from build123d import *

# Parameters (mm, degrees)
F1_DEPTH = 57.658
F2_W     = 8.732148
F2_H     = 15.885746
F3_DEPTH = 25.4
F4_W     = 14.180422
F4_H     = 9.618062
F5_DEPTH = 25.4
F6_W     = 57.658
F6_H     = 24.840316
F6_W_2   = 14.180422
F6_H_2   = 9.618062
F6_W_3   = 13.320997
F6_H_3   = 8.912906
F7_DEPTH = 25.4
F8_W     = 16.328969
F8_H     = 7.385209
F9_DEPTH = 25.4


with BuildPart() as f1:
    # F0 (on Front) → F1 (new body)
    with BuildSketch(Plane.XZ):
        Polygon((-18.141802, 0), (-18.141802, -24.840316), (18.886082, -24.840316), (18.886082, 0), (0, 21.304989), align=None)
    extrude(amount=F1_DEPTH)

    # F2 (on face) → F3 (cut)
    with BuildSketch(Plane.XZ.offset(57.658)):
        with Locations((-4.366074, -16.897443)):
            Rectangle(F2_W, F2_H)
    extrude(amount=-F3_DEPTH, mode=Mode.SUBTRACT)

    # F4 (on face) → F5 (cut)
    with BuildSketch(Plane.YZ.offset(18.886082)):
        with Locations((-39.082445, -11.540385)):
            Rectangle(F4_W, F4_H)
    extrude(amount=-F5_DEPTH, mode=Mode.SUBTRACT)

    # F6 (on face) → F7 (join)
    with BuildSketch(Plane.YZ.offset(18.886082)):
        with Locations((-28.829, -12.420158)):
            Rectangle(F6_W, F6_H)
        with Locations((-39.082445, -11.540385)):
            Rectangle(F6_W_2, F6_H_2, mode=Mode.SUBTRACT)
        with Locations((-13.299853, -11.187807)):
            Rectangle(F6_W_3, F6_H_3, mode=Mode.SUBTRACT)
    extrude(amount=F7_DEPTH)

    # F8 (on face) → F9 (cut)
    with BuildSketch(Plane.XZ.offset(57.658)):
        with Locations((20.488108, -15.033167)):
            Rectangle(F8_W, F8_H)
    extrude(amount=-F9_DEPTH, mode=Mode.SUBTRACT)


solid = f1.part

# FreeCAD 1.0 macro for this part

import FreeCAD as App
import Part
import Sketcher
from FreeCAD import Vector
Q = App.Units.Quantity

doc = App.newDocument("Part")
body = doc.addObject("PartDesign::Body", "Body")

# Sketch on XZ plane
sketch1 = body.newObject("Sketcher::SketchObject", "Sketch")
sketch1.AttachmentSupport = (doc.getObject("XZ_Plane"), [""])
sketch1.MapMode = "FlatFace"
sketch1.addGeometry([
    Part.LineSegment(Vector(-18, 0, 0), Vector(-18, -25, 0)),  # 0
    Part.LineSegment(Vector(-18, -25, 0), Vector(19, -25, 0)),  # 1
    Part.LineSegment(Vector(19, -25, 0), Vector(19, 0, 0)),  # 2
    Part.LineSegment(Vector(19, 0, 0), Vector(0, 21, 0)),  # 3
    Part.LineSegment(Vector(0, 21, 0), Vector(-18, 0, 0)),  # 4
], False)
sketch1.addConstraint([
    Sketcher.Constraint("Coincident", 0, 2, 1, 1),
    Sketcher.Constraint("Coincident", 1, 2, 2, 1),
    Sketcher.Constraint("Coincident", 2, 2, 3, 1),
    Sketcher.Constraint("Coincident", 3, 2, 4, 1),
    Sketcher.Constraint("Coincident", 4, 2, 0, 1),
    Sketcher.Constraint("Vertical", 0),
    Sketcher.Constraint("Horizontal", 1),
    Sketcher.Constraint("Vertical", 2),
    Sketcher.Constraint("PointOnObject", 2, 2, -1),
    Sketcher.Constraint("PointOnObject", 3, 2, -2),
    Sketcher.Constraint("PointOnObject", 4, 2, -1),
    Sketcher.Constraint("DistanceX", 0, 2, -1, 1, Q("18.141802 mm")),
    Sketcher.Constraint("Distance", 4, Q("27.982629 mm")),
    Sketcher.Constraint("DistanceX", 1, 1, 1, 2, Q("37.027884 mm")),
    Sketcher.Constraint("DistanceY", 0, 2, 0, 1, Q("24.840316 mm")),
])
pad1 = body.newObject("PartDesign::Pad", "Pad")
pad1.Profile = sketch1
pad1.Length = Q("2.27 in")

# Sketch on XZ plane
sketch2 = body.newObject("Sketcher::SketchObject", "Sketch001")
sketch2.AttachmentSupport = (doc.getObject("XZ_Plane"), [""])
sketch2.MapMode = "FlatFace"
sketch2.AttachmentOffset = App.Placement(Vector(0, 0, 2.27 * 25.4), App.Rotation())
sketch2.addGeometry([
    Part.LineSegment(Vector(-9, -9, 0), Vector(-9, -25, 0)),
    Part.LineSegment(Vector(-9, -25, 0), Vector(0, -25, 0)),
    Part.LineSegment(Vector(0, -25, 0), Vector(0, -9, 0)),
    Part.LineSegment(Vector(0, -9, 0), Vector(-9, -9, 0)),
], False)
sketch2.addConstraint([
    Sketcher.Constraint("Coincident", 0, 2, 1, 1),
    Sketcher.Constraint("Coincident", 1, 2, 2, 1),
    Sketcher.Constraint("Coincident", 2, 2, 3, 1),
    Sketcher.Constraint("Coincident", 3, 2, 0, 1),
    Sketcher.Constraint("Vertical", 0),
    Sketcher.Constraint("Horizontal", 1),
    Sketcher.Constraint("Vertical", 2),
    Sketcher.Constraint("Horizontal", 3),
    Sketcher.Constraint("PointOnObject", 1, 2, -2),
    Sketcher.Constraint("DistanceX", 1, 1, 1, 2, Q("8.732148 mm")),
    Sketcher.Constraint("DistanceY", 0, 2, 0, 1, Q("15.885746 mm")),
    Sketcher.Constraint("DistanceY", 2, 2, -1, 1, Q("8.95457 mm")),
])
pocket1 = body.newObject("PartDesign::Pocket", "Pocket")
pocket1.Profile = sketch2
pocket1.Length = Q("1 in")

# Sketch on YZ plane
sketch3 = body.newObject("Sketcher::SketchObject", "Sketch002")
sketch3.AttachmentSupport = (doc.getObject("YZ_Plane"), [""])
sketch3.MapMode = "FlatFace"
sketch3.AttachmentOffset = App.Placement(Vector(0, 0, 18.886082), App.Rotation())
sketch3.addGeometry([
    Part.LineSegment(Vector(-46, -7, 0), Vector(-46, -16, 0)),
    Part.LineSegment(Vector(-46, -16, 0), Vector(-32, -16, 0)),
    Part.LineSegment(Vector(-32, -16, 0), Vector(-32, -7, 0)),
    Part.LineSegment(Vector(-32, -7, 0), Vector(-46, -7, 0)),
], False)
sketch3.addConstraint([
    Sketcher.Constraint("Coincident", 0, 2, 1, 1),
    Sketcher.Constraint("Coincident", 1, 2, 2, 1),
    Sketcher.Constraint("Coincident", 2, 2, 3, 1),
    Sketcher.Constraint("Coincident", 3, 2, 0, 1),
    Sketcher.Constraint("Vertical", 0),
    Sketcher.Constraint("Horizontal", 1),
    Sketcher.Constraint("Vertical", 2),
    Sketcher.Constraint("Horizontal", 3),
    Sketcher.Constraint("DistanceX", 1, 1, 1, 2, Q("14.180422 mm")),
    Sketcher.Constraint("DistanceY", 0, 2, 0, 1, Q("9.618062 mm")),
    Sketcher.Constraint("DistanceX", 0, 2, -1, 1, Q("46.172656 mm")),
    Sketcher.Constraint("DistanceY", 0, 2, -1, 1, Q("16.349416 mm")),
])
pocket2 = body.newObject("PartDesign::Pocket", "Pocket001")
pocket2.Profile = sketch3
pocket2.Length = Q("1 in")

# Sketch on YZ plane
sketch4 = body.newObject("Sketcher::SketchObject", "Sketch003")
sketch4.AttachmentSupport = (doc.getObject("YZ_Plane"), [""])
sketch4.MapMode = "FlatFace"
sketch4.AttachmentOffset = App.Placement(Vector(0, 0, 18.886082), App.Rotation())
sketch4.addGeometry([
    Part.LineSegment(Vector(-58, 0, 0), Vector(-58, -25, 0)),  # 0
    Part.LineSegment(Vector(-58, -25, 0), Vector(0, -25, 0)),  # 1
    Part.LineSegment(Vector(0, -25, 0), Vector(0, 0, 0)),  # 2
    Part.LineSegment(Vector(0, 0, 0), Vector(-58, 0, 0)),  # 3
    Part.LineSegment(Vector(-32, -16, 0), Vector(-46, -16, 0)),  # 4
    Part.LineSegment(Vector(-46, -16, 0), Vector(-46, -7, 0)),  # 5
    Part.LineSegment(Vector(-46, -7, 0), Vector(-32, -7, 0)),  # 6
    Part.LineSegment(Vector(-32, -7, 0), Vector(-32, -16, 0)),  # 7
    Part.LineSegment(Vector(-7, -16, 0), Vector(-20, -16, 0)),  # 8
    Part.LineSegment(Vector(-20, -16, 0), Vector(-20, -7, 0)),  # 9
    Part.LineSegment(Vector(-20, -7, 0), Vector(-7, -7, 0)),  # 10
    Part.LineSegment(Vector(-7, -7, 0), Vector(-7, -16, 0)),  # 11
], False)
sketch4.addConstraint([
    Sketcher.Constraint("Coincident", 0, 2, 1, 1),
    Sketcher.Constraint("Coincident", 1, 2, 2, 1),
    Sketcher.Constraint("Coincident", 2, 2, 3, 1),
    Sketcher.Constraint("Coincident", 3, 2, 0, 1),
    Sketcher.Constraint("Coincident", 4, 2, 5, 1),
    Sketcher.Constraint("Coincident", 5, 2, 6, 1),
    Sketcher.Constraint("Coincident", 6, 2, 7, 1),
    Sketcher.Constraint("Coincident", 7, 2, 4, 1),
    Sketcher.Constraint("Coincident", 8, 2, 9, 1),
    Sketcher.Constraint("Coincident", 9, 2, 10, 1),
    Sketcher.Constraint("Coincident", 10, 2, 11, 1),
    Sketcher.Constraint("Coincident", 11, 2, 8, 1),
    Sketcher.Constraint("Vertical", 0),
    Sketcher.Constraint("Horizontal", 1),
    Sketcher.Constraint("Vertical", 2),
    Sketcher.Constraint("Horizontal", 3),
    Sketcher.Constraint("Horizontal", 4),
    Sketcher.Constraint("Vertical", 5),
    Sketcher.Constraint("Horizontal", 6),
    Sketcher.Constraint("Vertical", 7),
    Sketcher.Constraint("Horizontal", 8),
    Sketcher.Constraint("Vertical", 9),
    Sketcher.Constraint("Horizontal", 10),
    Sketcher.Constraint("Vertical", 11),
    Sketcher.Constraint("Coincident", 2, 2, -1, 1),
    Sketcher.Constraint("Horizontal", 6, 2, 9, 2),
    Sketcher.Constraint("DistanceX", 1, 1, 1, 2, Q("2.27 in")),
    Sketcher.Constraint("DistanceY", 0, 2, 4, 2, Q("8.4909 mm")),
    Sketcher.Constraint("DistanceX", 4, 2, 4, 1, Q("14.180422 mm")),
    Sketcher.Constraint("DistanceX", 8, 2, 8, 1, Q("13.320997 mm")),
    Sketcher.Constraint("DistanceY", 0, 2, 0, 1, Q("24.840316 mm")),
    Sketcher.Constraint("DistanceY", 5, 1, 5, 2, Q("9.618062 mm")),
    Sketcher.Constraint("DistanceY", 9, 1, 9, 2, Q("8.912906 mm")),
    Sketcher.Constraint("DistanceX", 8, 2, -1, 1, Q("19.960352 mm")),
    Sketcher.Constraint("DistanceX", 6, 2, 10, 2, Q("25.35288 mm")),
])
pad2 = body.newObject("PartDesign::Pad", "Pad001")
pad2.Profile = sketch4
pad2.Length = Q("1 in")

# Sketch on XZ plane
sketch5 = body.newObject("Sketcher::SketchObject", "Sketch004")
sketch5.AttachmentSupport = (doc.getObject("XZ_Plane"), [""])
sketch5.MapMode = "FlatFace"
sketch5.AttachmentOffset = App.Placement(Vector(0, 0, 2.27 * 25.4), App.Rotation())
sketch5.addGeometry([
    Part.LineSegment(Vector(12, -11, 0), Vector(12, -19, 0)),
    Part.LineSegment(Vector(12, -19, 0), Vector(29, -19, 0)),
    Part.LineSegment(Vector(29, -19, 0), Vector(29, -11, 0)),
    Part.LineSegment(Vector(29, -11, 0), Vector(12, -11, 0)),
], False)
sketch5.addConstraint([
    Sketcher.Constraint("Coincident", 0, 2, 1, 1),
    Sketcher.Constraint("Coincident", 1, 2, 2, 1),
    Sketcher.Constraint("Coincident", 2, 2, 3, 1),
    Sketcher.Constraint("Coincident", 3, 2, 0, 1),
    Sketcher.Constraint("Vertical", 0),
    Sketcher.Constraint("Horizontal", 1),
    Sketcher.Constraint("Vertical", 2),
    Sketcher.Constraint("Horizontal", 3),
    Sketcher.Constraint("DistanceX", 1, 1, 1, 2, Q("16.328969 mm")),
    Sketcher.Constraint("DistanceY", 0, 2, 0, 1, Q("7.385209 mm")),
    Sketcher.Constraint("DistanceY", 0, 2, -1, 1, Q("18.725772 mm")),
    Sketcher.Constraint("DistanceX", -1, 1, 0, 2, Q("12.323624 mm")),
])
pocket3 = body.newObject("PartDesign::Pocket", "Pocket002")
pocket3.Profile = sketch5
pocket3.Length = Q("1 in")

doc.recompute()
